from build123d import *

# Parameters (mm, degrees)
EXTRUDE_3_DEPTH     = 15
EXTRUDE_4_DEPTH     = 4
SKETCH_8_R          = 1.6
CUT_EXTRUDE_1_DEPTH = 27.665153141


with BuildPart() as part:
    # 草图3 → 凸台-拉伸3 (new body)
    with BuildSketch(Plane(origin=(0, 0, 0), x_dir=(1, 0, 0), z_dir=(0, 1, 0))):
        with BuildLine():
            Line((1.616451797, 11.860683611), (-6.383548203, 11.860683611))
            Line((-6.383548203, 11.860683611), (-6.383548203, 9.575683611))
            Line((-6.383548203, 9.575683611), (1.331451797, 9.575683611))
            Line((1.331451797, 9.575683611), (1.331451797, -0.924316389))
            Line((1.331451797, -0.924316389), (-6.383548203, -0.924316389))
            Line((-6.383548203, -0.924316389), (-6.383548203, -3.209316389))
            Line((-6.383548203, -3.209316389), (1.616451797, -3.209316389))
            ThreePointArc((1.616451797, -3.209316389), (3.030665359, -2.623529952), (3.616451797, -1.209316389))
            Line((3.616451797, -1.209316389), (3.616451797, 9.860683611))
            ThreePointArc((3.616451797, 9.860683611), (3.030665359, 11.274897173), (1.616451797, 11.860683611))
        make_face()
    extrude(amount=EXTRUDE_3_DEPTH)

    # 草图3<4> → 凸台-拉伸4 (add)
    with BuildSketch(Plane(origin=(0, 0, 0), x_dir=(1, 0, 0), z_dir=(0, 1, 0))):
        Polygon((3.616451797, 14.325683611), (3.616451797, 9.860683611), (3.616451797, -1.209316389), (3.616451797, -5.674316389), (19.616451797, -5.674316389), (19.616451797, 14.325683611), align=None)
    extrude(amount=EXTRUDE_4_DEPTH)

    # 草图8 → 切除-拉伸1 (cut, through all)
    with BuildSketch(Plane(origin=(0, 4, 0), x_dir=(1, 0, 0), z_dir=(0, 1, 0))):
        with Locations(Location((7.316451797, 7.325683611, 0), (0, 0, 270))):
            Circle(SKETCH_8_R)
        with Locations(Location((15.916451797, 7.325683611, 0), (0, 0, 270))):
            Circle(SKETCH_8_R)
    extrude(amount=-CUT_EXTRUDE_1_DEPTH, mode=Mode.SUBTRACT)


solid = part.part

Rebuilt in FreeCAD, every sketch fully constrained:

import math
import FreeCAD as App
import Part
import Sketcher

doc = App.newDocument("Part")
body = doc.addObject("PartDesign::Body", "Body")

# Sketch on XZ plane
sketch1 = doc.addObject("Sketcher::SketchObject", "Sketch")
body.addObject(sketch1)
sketch1.AttachmentSupport = (doc.XZ_Plane, [""])
sketch1.MapMode = "FlatFace"
sketch1.addGeometry(Part.LineSegment(App.Vector(1.6, -11.9, 0), App.Vector(-6.4, -11.9, 0)), False)
sketch1.addGeometry(Part.LineSegment(App.Vector(-6.4, -11.9, 0), App.Vector(-6.4, -9.6, 0)), False)
sketch1.addGeometry(Part.LineSegment(App.Vector(-6.4, -9.6, 0), App.Vector(1.3, -9.6, 0)), False)
sketch1.addGeometry(Part.LineSegment(App.Vector(1.3, -9.6, 0), App.Vector(1.3, 0.9, 0)), False)
sketch1.addGeometry(Part.LineSegment(App.Vector(1.3, 0.9, 0), App.Vector(-6.4, 0.9, 0)), False)
sketch1.addGeometry(Part.LineSegment(App.Vector(-6.4, 0.9, 0), App.Vector(-6.4, 3.2, 0)), False)
sketch1.addGeometry(Part.LineSegment(App.Vector(-6.4, 3.2, 0), App.Vector(1.6, 3.2, 0)), False)
sketch1.addGeometry(Part.ArcOfCircle(Part.Circle(App.Vector(1.6, 1.2, 0), App.Vector(0, 0, 1), 2), math.radians(0), math.radians(90)), False)
sketch1.addGeometry(Part.LineSegment(App.Vector(3.6, 1.2, 0), App.Vector(3.6, -9.9, 0)), False)
sketch1.addGeometry(Part.ArcOfCircle(Part.Circle(App.Vector(1.6, -9.9, 0), App.Vector(0, 0, 1), 2), math.radians(-90), math.radians(0)), False)
sketch1.addConstraint(Sketcher.Constraint("Coincident", 0, 2, 1, 1))
sketch1.addConstraint(Sketcher.Constraint("Coincident", 1, 2, 2, 1))
sketch1.addConstraint(Sketcher.Constraint("Coincident", 2, 2, 3, 1))
sketch1.addConstraint(Sketcher.Constraint("Coincident", 3, 2, 4, 1))
sketch1.addConstraint(Sketcher.Constraint("Coincident", 4, 2, 5, 1))
sketch1.addConstraint(Sketcher.Constraint("Coincident", 5, 2, 6, 1))
sketch1.addConstraint(Sketcher.Constraint("Tangent", 6, 2, 7, 2))
sketch1.addConstraint(Sketcher.Constraint("Tangent", 7, 1, 8, 1))
sketch1.addConstraint(Sketcher.Constraint("Tangent", 8, 2, 9, 2))
sketch1.addConstraint(Sketcher.Constraint("Tangent", 9, 1, 0, 1))
sketch1.addConstraint(Sketcher.Constraint("Horizontal", 0))
sketch1.addConstraint(Sketcher.Constraint("Vertical", 1))
sketch1.addConstraint(Sketcher.Constraint("Horizontal", 2))
sketch1.addConstraint(Sketcher.Constraint("Vertical", 3))
sketch1.addConstraint(Sketcher.Constraint("Horizontal", 4))
sketch1.addConstraint(Sketcher.Constraint("Vertical", 5))
sketch1.addConstraint(Sketcher.Constraint("Horizontal", 6))
sketch1.addConstraint(Sketcher.Constraint("Vertical", 8))
sketch1.addConstraint(Sketcher.Constraint("Equal", 7, 9))
sketch1.addConstraint(Sketcher.Constraint("Vertical", 1, 2, 4, 2))
sketch1.addConstraint(Sketcher.Constraint("Equal", 1, 5))
sketch1.addConstraint(Sketcher.Constraint("Radius", 7, 2.0))
sketch1.addConstraint(Sketcher.Constraint("DistanceX", 0, 2, 0, 1, 8.0))
sketch1.addConstraint(Sketcher.Constraint("DistanceY", 3, 1, 3, 2, 10.5))
sketch1.addConstraint(Sketcher.Constraint("DistanceY", 8, 2, 8, 1, 11.07))
sketch1.addConstraint(Sketcher.Constraint("DistanceX", 2, 1, 2, 2, 7.715))
sketch1.addConstraint(Sketcher.Constraint("DistanceX", -1, 1, 7, 3, 1.616452))
sketch1.addConstraint(Sketcher.Constraint("DistanceY", -1, 1, 7, 3, 1.209316))
pad1 = doc.addObject("PartDesign::Pad", "Pad")
body.addObject(pad1)
pad1.Profile = sketch1
pad1.Length = 15
pad1.Reversed = True

# Sketch on XZ plane
sketch2 = doc.addObject("Sketcher::SketchObject", "Sketch001")
body.addObject(sketch2)
sketch2.AttachmentSupport = (doc.XZ_Plane, [""])
sketch2.MapMode = "FlatFace"
sketch2.addGeometry(Part.LineSegment(App.Vector(4, -14, 0), App.Vector(4, 6, 0)), False)
sketch2.addGeometry(Part.LineSegment(App.Vector(4, 6, 0), App.Vector(20, 6, 0)), False)
sketch2.addGeometry(Part.LineSegment(App.Vector(20, 6, 0), App.Vector(20, -14, 0)), False)
sketch2.addGeometry(Part.LineSegment(App.Vector(20, -14, 0), App.Vector(4, -14, 0)), False)
sketch2.addConstraint(Sketcher.Constraint("Coincident", 0, 2, 1, 1))
sketch2.addConstraint(Sketcher.Constraint("Coincident", 1, 2, 2, 1))
sketch2.addConstraint(Sketcher.Constraint("Coincident", 2, 2, 3, 1))
sketch2.addConstraint(Sketcher.Constraint("Coincident", 3, 2, 0, 1))
sketch2.addConstraint(Sketcher.Constraint("Vertical", 0))
sketch2.addConstraint(Sketcher.Constraint("Horizontal", 1))
sketch2.addConstraint(Sketcher.Constraint("Vertical", 2))
sketch2.addConstraint(Sketcher.Constraint("Horizontal", 3))
sketch2.addConstraint(Sketcher.Constraint("DistanceX", 1, 1, 1, 2, 16.0))
sketch2.addConstraint(Sketcher.Constraint("DistanceY", 0, 1, 0, 2, 20.0))
sketch2.addConstraint(Sketcher.Constraint("DistanceX", -1, 1, 0, 2, 3.616452))
sketch2.addConstraint(Sketcher.Constraint("DistanceY", -1, 1, 0, 2, 5.674316))
pad2 = doc.addObject("PartDesign::Pad", "Pad001")
body.addObject(pad2)
pad2.Profile = sketch2
pad2.Length = 4
pad2.Reversed = True

# Sketch on XZ plane
sketch3 = doc.addObject("Sketcher::SketchObject", "Sketch002")
body.addObject(sketch3)
sketch3.AttachmentSupport = (doc.XZ_Plane, [""])
sketch3.MapMode = "FlatFace"
sketch3.AttachmentOffset = App.Placement(App.Vector(0, 0, -4), App.Rotation())
sketch3.addGeometry(Part.Circle(App.Vector(7.3, -7.3, 0), App.Vector(0, 0, 1), 1.6), False)
sketch3.addGeometry(Part.Circle(App.Vector(15.9, -7.3, 0), App.Vector(0, 0, 1), 1.6), False)
sketch3.addConstraint(Sketcher.Constraint("Equal", 0, 1))
sketch3.addConstraint(Sketcher.Constraint("Horizontal", 0, 3, 1, 3))
sketch3.addConstraint(Sketcher.Constraint("Diameter", 0, 3.2))
sketch3.addConstraint(Sketcher.Constraint("DistanceX", 0, 3, 1, 3, 8.6))
sketch3.addConstraint(Sketcher.Constraint("DistanceX", -1, 1, 0, 3, 7.316452))
sketch3.addConstraint(Sketcher.Constraint("DistanceY", 0, 3, -1, 1, 7.325684))
pocket1 = doc.addObject("PartDesign::Pocket", "Pocket")
body.addObject(pocket1)
pocket1.Profile = sketch3
pocket1.Type = "ThroughAll"
pocket1.Reversed = True

doc.recompute()
